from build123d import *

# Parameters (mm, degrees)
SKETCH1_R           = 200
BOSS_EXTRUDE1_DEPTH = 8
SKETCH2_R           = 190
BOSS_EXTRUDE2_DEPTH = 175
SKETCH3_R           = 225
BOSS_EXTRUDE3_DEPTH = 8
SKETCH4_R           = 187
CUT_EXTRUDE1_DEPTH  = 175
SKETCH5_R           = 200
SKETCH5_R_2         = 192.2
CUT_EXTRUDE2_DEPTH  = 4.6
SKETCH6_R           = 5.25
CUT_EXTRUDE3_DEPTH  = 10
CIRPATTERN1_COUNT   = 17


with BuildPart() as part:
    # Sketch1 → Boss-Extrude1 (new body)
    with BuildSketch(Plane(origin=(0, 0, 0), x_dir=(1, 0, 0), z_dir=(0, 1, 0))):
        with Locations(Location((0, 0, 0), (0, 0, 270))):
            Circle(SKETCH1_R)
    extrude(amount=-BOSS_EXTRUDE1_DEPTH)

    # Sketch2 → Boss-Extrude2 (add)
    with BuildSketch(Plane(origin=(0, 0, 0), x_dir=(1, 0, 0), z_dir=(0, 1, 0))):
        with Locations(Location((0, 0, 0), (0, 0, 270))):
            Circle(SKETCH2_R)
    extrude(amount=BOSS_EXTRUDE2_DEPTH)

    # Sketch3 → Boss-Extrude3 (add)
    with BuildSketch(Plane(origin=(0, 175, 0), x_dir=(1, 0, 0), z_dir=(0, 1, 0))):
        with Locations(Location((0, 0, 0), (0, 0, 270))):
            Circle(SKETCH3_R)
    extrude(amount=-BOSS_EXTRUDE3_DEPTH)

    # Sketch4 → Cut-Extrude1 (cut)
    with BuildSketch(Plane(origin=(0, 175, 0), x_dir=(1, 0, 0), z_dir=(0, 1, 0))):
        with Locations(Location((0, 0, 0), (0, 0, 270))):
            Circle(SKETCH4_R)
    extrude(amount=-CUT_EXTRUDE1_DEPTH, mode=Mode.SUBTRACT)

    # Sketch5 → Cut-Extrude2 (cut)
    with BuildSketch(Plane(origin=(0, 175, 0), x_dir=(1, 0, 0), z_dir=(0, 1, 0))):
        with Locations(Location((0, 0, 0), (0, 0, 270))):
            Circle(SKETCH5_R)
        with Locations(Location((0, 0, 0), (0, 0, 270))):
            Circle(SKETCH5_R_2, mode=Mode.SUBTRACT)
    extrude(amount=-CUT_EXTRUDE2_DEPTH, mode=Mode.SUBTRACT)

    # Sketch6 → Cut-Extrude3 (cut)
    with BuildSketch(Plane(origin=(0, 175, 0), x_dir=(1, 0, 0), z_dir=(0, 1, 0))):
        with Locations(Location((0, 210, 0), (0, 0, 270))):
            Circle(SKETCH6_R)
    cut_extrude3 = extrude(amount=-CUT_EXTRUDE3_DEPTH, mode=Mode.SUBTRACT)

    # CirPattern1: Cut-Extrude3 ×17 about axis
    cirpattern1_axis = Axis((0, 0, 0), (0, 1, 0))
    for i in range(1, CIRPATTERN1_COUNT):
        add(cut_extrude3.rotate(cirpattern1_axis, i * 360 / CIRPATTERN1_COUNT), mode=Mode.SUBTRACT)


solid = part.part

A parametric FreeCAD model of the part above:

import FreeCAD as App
import Part
import Sketcher

V = App.Vector
Q = App.Units.Quantity

doc = App.newDocument("Part")
params = doc.addObject("Spreadsheet::Sheet", "Params")
for row, (alias, value) in enumerate([
    ("sketch1_diameter", "400 mm"),
    ("pad1_length", "8 mm"),
    ("sketch2_diameter", "380 mm"),
    ("pad2_length", "175 mm"),
    ("sketch3_diameter", "450 mm"),
    ("pad3_length", "8 mm"),
    ("sketch4_diameter", "374 mm"),
    ("pocket1_length", "175 mm"),
    ("sketch5_diameter", "400 mm"),
    ("sketch5_diameter2", "384.4 mm"),
    ("pocket2_length", "4.6 mm"),
    ("sketch6_diameter", "10.5 mm"),
    ("pocket3_length", "10 mm"),
], start=1):
    params.set(f"A{row}", alias)
    params.set(f"B{row}", "=" + value)
    params.setAlias(f"B{row}", alias)

body = doc.addObject("PartDesign::Body", "Body")

sketch1 = doc.addObject("Sketcher::SketchObject", "Sketch")
body.addObject(sketch1)
sketch1.AttachmentSupport = (doc.XZ_Plane, [""])
sketch1.MapMode = "FlatFace"
sketch1.addGeometry(Part.Circle(V(0, 0, 0), V(0, 0, 1), 200), False)
sketch1.addConstraint(Sketcher.Constraint("Coincident", 0, 3, -1, 1))
sketch1.addConstraint(Sketcher.Constraint("Diameter", 0, Q("400 mm")))
sketch1.setExpression("Constraints[1]", "Params.sketch1_diameter")
pad1 = doc.addObject("PartDesign::Pad", "Pad")
body.addObject(pad1)
pad1.Profile = sketch1
pad1.setExpression("Length", "Params.pad1_length")

sketch2 = doc.addObject("Sketcher::SketchObject", "Sketch001")
body.addObject(sketch2)
sketch2.AttachmentSupport = (doc.XZ_Plane, [""])
sketch2.MapMode = "FlatFace"
sketch2.addGeometry(Part.Circle(V(0, 0, 0), V(0, 0, 1), 190), False)
sketch2.addConstraint(Sketcher.Constraint("Coincident", 0, 3, -1, 1))
sketch2.addConstraint(Sketcher.Constraint("Diameter", 0, Q("380 mm")))
sketch2.setExpression("Constraints[1]", "Params.sketch2_diameter")
pad2 = doc.addObject("PartDesign::Pad", "Pad001")
body.addObject(pad2)
pad2.Profile = sketch2
pad2.setExpression("Length", "Params.pad2_length")
pad2.Reversed = True

sketch3 = doc.addObject("Sketcher::SketchObject", "Sketch002")
body.addObject(sketch3)
sketch3.AttachmentSupport = (doc.XZ_Plane, [""])
sketch3.MapMode = "FlatFace"
sketch3.AttachmentOffset = App.Placement(V(0, 0, -175), App.Rotation())
sketch3.addGeometry(Part.Circle(V(0, 0, 0), V(0, 0, 1), 225), False)
sketch3.addConstraint(Sketcher.Constraint("Coincident", 0, 3, -1, 1))
sketch3.addConstraint(Sketcher.Constraint("Diameter", 0, Q("450 mm")))
sketch3.setExpression("Constraints[1]", "Params.sketch3_diameter")
pad3 = doc.addObject("PartDesign::Pad", "Pad002")
body.addObject(pad3)
pad3.Profile = sketch3
pad3.setExpression("Length", "Params.pad3_length")

sketch4 = doc.addObject("Sketcher::SketchObject", "Sketch003")
body.addObject(sketch4)
sketch4.AttachmentSupport = (doc.XZ_Plane, [""])
sketch4.MapMode = "FlatFace"
sketch4.AttachmentOffset = App.Placement(V(0, 0, -175), App.Rotation())
sketch4.addGeometry(Part.Circle(V(0, 0, 0), V(0, 0, 1), 187), False)
sketch4.addConstraint(Sketcher.Constraint("Coincident", 0, 3, -1, 1))
sketch4.addConstraint(Sketcher.Constraint("Diameter", 0, Q("374 mm")))
sketch4.setExpression("Constraints[1]", "Params.sketch4_diameter")
pocket1 = doc.addObject("PartDesign::Pocket", "Pocket")
body.addObject(pocket1)
pocket1.Profile = sketch4
pocket1.setExpression("Length", "Params.pocket1_length")
pocket1.Reversed = True

sketch5 = doc.addObject("Sketcher::SketchObject", "Sketch004")
body.addObject(sketch5)
sketch5.AttachmentSupport = (doc.XZ_Plane, [""])
sketch5.MapMode = "FlatFace"
sketch5.AttachmentOffset = App.Placement(V(0, 0, -175), App.Rotation())
sketch5.addGeometry(Part.Circle(V(0, 0, 0), V(0, 0, 1), 200), False)
sketch5.addGeometry(Part.Circle(V(0, 0, 0), V(0, 0, 1), 192), False)
sketch5.addConstraint(Sketcher.Constraint("Coincident", 0, 3, -1, 1))
sketch5.addConstraint(Sketcher.Constraint("Coincident", 1, 3, -1, 1))
sketch5.addConstraint(Sketcher.Constraint("Diameter", 0, Q("400 mm")))
sketch5.addConstraint(Sketcher.Constraint("Diameter", 1, Q("384.4 mm")))
sketch5.setExpression("Constraints[2]", "Params.sketch5_diameter")
sketch5.setExpression("Constraints[3]", "Params.sketch5_diameter2")
pocket2 = doc.addObject("PartDesign::Pocket", "Pocket001")
body.addObject(pocket2)
pocket2.Profile = sketch5
pocket2.setExpression("Length", "Params.pocket2_length")
pocket2.Reversed = True

sketch6 = doc.addObject("Sketcher::SketchObject", "Sketch005")
body.addObject(sketch6)
sketch6.AttachmentSupport = (doc.XZ_Plane, [""])
sketch6.MapMode = "FlatFace"
sketch6.AttachmentOffset = App.Placement(V(0, 0, -175), App.Rotation())
sketch6.addGeometry(Part.Circle(V(0, -210, 0), V(0, 0, 1), 5), False)
sketch6.addConstraint(Sketcher.Constraint("PointOnObject", 0, 3, -2))
sketch6.addConstraint(Sketcher.Constraint("Diameter", 0, Q("10.5 mm")))
sketch6.addConstraint(Sketcher.Constraint("DistanceY", 0, 3, -1, 1, Q("210 mm")))
sketch6.setExpression("Constraints[1]", "Params.sketch6_diameter")
pocket3 = doc.addObject("PartDesign::Pocket", "Pocket002")
body.addObject(pocket3)
pocket3.Profile = sketch6
pocket3.setExpression("Length", "Params.pocket3_length")
pocket3.Reversed = True
doc.recompute()

polarpattern = doc.addObject("PartDesign::PolarPattern", "PolarPattern")
body.addObject(polarpattern)
polarpattern.Originals = [pocket3]
polarpattern.Axis = (doc.Y_Axis, [""])
polarpattern.Angle = 360
polarpattern.Occurrences = 17
body.Tip = polarpattern

doc.recompute()
